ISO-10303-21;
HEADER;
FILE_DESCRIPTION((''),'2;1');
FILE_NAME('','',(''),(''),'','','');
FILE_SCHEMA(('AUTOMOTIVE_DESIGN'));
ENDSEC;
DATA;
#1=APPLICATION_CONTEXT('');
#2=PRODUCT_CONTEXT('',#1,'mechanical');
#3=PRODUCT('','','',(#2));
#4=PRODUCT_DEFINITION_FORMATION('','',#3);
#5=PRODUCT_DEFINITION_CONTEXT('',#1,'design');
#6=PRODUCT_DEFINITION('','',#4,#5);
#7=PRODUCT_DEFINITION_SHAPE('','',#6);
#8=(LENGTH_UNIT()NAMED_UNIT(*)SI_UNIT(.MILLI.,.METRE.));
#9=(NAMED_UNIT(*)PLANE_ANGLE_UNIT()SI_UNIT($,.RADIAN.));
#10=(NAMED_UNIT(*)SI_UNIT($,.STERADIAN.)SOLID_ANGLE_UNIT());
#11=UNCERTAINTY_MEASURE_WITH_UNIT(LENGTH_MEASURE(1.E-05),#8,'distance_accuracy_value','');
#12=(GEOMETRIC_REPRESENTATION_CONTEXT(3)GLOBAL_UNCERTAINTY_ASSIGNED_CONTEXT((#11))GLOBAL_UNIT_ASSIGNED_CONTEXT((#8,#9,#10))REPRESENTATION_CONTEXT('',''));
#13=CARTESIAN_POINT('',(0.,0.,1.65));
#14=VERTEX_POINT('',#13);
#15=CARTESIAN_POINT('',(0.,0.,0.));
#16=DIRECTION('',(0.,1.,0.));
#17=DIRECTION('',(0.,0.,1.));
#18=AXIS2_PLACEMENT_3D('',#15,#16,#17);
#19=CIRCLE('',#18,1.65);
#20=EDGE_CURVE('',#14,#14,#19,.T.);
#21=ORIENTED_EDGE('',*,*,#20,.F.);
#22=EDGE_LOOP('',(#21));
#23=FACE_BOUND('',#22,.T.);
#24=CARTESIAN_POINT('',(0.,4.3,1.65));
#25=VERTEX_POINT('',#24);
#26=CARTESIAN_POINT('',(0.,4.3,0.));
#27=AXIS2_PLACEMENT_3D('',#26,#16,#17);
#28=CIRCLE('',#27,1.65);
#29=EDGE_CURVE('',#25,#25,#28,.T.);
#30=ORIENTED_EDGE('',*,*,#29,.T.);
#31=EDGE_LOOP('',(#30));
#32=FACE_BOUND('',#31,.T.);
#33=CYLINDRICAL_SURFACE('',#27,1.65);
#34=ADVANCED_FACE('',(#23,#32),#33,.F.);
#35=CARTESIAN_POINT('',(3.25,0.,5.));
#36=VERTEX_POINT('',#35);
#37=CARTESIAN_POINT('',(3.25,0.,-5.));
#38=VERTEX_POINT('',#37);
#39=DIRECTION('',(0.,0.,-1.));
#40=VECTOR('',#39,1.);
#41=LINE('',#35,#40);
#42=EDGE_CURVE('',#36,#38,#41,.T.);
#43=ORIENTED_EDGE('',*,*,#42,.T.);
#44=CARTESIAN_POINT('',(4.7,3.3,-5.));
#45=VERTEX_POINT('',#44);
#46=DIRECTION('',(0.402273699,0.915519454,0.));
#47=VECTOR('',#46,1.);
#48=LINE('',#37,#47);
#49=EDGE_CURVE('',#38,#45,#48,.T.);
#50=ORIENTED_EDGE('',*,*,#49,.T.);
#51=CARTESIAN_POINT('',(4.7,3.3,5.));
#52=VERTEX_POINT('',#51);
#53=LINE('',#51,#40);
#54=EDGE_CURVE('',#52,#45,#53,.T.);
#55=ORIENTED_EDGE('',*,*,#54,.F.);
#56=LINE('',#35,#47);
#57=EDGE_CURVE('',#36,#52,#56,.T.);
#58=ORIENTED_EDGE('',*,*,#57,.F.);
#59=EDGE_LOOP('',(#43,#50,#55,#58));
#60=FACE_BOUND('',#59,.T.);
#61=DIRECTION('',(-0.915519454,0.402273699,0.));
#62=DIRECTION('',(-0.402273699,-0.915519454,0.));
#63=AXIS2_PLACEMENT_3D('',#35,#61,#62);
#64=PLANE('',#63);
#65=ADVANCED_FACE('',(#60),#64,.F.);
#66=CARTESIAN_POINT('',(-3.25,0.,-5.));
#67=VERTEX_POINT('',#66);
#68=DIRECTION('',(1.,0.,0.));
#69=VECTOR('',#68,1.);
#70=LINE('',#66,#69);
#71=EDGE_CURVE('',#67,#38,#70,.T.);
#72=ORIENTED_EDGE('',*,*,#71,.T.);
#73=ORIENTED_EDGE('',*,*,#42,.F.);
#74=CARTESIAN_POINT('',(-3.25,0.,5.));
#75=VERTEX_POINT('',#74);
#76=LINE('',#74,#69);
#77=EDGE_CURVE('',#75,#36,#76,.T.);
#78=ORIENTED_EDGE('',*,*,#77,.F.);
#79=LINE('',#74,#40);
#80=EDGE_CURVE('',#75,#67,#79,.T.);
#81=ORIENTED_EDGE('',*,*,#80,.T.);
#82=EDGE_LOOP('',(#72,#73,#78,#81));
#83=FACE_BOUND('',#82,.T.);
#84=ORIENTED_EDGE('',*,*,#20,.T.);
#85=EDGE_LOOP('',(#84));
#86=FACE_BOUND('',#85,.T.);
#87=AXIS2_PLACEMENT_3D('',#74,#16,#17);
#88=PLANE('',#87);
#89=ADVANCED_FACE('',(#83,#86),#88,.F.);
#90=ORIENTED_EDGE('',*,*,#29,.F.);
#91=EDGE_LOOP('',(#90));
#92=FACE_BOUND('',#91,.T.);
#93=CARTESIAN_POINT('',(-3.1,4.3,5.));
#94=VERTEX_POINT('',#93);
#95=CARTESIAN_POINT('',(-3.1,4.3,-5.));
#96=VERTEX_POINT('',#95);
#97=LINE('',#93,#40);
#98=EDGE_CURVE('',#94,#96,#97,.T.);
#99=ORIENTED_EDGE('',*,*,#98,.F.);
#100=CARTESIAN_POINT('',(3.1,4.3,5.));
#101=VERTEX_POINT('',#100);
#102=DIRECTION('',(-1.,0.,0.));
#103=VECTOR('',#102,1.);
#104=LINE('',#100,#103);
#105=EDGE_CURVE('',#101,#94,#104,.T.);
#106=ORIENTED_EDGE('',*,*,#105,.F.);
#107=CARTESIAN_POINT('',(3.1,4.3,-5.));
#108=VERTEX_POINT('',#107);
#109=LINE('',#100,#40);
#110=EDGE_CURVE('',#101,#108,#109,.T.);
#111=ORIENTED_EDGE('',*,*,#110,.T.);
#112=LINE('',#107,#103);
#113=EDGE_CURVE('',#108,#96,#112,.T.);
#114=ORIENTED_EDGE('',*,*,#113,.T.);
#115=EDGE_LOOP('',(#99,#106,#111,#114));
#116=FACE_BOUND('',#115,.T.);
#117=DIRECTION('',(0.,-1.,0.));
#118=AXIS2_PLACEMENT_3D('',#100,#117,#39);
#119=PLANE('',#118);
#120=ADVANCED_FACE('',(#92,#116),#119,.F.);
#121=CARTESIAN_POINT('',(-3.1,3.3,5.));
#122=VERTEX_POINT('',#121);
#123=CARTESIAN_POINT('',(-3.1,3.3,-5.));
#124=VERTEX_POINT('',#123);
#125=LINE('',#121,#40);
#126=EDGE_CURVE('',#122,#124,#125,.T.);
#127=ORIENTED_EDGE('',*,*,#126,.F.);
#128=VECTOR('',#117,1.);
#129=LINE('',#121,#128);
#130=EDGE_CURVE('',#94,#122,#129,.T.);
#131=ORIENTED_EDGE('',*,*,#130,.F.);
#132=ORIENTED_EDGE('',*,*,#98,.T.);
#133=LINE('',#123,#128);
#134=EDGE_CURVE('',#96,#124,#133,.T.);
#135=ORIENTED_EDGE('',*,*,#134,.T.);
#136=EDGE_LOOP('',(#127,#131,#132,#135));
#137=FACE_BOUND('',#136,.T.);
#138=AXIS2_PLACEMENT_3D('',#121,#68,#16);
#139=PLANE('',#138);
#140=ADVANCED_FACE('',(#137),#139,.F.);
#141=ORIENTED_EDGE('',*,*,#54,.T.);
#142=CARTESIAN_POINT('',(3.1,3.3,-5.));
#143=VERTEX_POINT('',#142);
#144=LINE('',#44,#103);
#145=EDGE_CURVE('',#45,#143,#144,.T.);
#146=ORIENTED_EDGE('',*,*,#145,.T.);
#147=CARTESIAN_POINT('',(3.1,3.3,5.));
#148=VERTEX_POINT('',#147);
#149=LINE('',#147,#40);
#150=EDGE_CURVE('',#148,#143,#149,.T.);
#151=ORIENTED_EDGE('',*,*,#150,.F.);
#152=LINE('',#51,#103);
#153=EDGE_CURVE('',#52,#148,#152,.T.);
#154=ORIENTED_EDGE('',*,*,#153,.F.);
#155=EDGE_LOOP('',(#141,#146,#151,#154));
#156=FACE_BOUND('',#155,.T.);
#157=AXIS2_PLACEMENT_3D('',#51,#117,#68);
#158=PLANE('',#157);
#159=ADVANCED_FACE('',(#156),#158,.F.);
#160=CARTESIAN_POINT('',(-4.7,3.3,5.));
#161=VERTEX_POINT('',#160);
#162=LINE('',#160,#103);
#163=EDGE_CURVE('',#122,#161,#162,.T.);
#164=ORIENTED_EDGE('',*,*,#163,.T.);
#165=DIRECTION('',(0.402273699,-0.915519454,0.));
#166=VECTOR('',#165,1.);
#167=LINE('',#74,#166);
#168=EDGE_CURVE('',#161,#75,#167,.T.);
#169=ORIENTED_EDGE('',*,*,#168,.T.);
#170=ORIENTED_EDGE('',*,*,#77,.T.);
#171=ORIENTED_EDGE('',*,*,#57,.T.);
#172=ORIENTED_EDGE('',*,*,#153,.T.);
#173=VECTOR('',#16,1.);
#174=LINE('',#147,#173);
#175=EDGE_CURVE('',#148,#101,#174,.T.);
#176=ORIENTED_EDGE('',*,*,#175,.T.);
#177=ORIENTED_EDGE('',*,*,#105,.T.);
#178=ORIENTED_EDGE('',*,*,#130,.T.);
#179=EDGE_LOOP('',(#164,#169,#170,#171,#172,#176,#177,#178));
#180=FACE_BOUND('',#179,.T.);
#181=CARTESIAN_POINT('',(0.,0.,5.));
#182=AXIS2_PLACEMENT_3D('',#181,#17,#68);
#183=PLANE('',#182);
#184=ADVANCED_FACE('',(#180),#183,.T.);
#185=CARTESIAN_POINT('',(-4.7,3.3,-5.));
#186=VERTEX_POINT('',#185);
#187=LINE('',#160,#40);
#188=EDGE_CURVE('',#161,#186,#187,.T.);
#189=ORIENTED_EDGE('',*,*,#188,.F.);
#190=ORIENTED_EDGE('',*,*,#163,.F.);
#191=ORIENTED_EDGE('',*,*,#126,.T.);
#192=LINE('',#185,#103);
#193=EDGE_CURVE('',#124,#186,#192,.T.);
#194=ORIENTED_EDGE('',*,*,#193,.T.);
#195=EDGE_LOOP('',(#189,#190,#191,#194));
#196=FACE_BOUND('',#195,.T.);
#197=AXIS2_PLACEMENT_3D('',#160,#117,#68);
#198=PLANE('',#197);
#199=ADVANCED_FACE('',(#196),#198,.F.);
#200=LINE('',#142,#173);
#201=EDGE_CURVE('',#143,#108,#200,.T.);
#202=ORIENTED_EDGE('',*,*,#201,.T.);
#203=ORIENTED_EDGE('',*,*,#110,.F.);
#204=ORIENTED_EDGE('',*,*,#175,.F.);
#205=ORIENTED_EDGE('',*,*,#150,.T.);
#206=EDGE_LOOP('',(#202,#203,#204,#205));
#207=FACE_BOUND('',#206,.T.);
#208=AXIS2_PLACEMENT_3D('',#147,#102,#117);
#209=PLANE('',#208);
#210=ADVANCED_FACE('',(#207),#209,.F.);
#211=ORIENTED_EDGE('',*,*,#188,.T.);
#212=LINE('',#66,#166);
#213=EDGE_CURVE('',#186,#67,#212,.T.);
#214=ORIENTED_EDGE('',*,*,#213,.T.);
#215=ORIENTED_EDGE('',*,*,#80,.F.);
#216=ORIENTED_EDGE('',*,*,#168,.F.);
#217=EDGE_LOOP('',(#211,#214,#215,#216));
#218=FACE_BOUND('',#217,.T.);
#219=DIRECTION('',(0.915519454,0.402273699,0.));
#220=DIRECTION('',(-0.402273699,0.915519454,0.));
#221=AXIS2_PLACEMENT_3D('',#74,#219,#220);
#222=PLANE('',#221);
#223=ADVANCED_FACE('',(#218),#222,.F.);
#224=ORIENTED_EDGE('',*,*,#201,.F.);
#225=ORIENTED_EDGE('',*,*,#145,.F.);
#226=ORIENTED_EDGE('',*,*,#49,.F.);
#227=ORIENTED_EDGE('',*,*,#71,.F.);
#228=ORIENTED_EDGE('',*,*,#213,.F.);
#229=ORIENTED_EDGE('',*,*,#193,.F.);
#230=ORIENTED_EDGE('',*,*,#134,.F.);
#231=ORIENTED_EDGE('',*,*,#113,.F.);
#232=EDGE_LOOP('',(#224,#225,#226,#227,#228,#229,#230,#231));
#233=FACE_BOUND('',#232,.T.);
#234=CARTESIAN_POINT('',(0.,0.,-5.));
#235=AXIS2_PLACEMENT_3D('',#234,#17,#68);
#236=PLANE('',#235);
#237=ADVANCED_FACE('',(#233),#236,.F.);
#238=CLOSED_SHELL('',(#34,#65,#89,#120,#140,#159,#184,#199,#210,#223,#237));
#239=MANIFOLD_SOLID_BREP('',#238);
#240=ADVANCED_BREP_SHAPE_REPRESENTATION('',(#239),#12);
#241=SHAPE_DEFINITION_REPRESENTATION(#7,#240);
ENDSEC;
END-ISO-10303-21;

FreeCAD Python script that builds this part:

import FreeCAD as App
import Part
import Sketcher
from FreeCAD import Vector

doc = App.newDocument("Part")
params = doc.addObject("Spreadsheet::Sheet", "Params")
for row, (alias, value) in enumerate([
    ("sketch1_height", "1 mm"),
    ("sketch1_width", "6.5 mm"),
    ("sketch1_width2", "1.6 mm"),
    ("sketch1_width3", "6.2 mm"),
    ("pad1_length", "10 mm"),
    ("sketch2_diameter", "3.3 mm"),
    ("hole_diameter", "3.3 mm"),
    ("hole_depth", "11.5 mm"),
], start=1):
    params.set(f"A{row}", alias)
    params.set(f"B{row}", "=" + value)
    params.setAlias(f"B{row}", alias)

body = doc.addObject("PartDesign::Body", "Body")

sketch1 = doc.addObject("Sketcher::SketchObject", "Sketch")
body.addObject(sketch1)
sketch1.AttachmentSupport = (doc.XY_Plane, [""])
sketch1.MapMode = "FlatFace"
sketch1.addGeometry(Part.LineSegment(Vector(-3.2, 0, 0), Vector(3.2, 0, 0)), False)
sketch1.addGeometry(Part.LineSegment(Vector(3.2, 0, 0), Vector(4.7, 3.3, 0)), False)
sketch1.addGeometry(Part.LineSegment(Vector(4.7, 3.3, 0), Vector(3.1, 3.3, 0)), False)
sketch1.addGeometry(Part.LineSegment(Vector(3.1, 3.3, 0), Vector(3.1, 4.3, 0)), False)
sketch1.addGeometry(Part.LineSegment(Vector(3.1, 4.3, 0), Vector(-3.1, 4.3, 0)), False)
sketch1.addGeometry(Part.LineSegment(Vector(-3.1, 4.3, 0), Vector(-3.1, 3.3, 0)), False)
sketch1.addGeometry(Part.LineSegment(Vector(-3.1, 3.3, 0), Vector(-4.7, 3.3, 0)), False)
sketch1.addGeometry(Part.LineSegment(Vector(-4.7, 3.3, 0), Vector(-3.2, 0, 0)), False)
sketch1.addConstraint(Sketcher.Constraint("Coincident", 0, 2, 1, 1))
sketch1.addConstraint(Sketcher.Constraint("Coincident", 1, 2, 2, 1))
sketch1.addConstraint(Sketcher.Constraint("Coincident", 2, 2, 3, 1))
sketch1.addConstraint(Sketcher.Constraint("Coincident", 3, 2, 4, 1))
sketch1.addConstraint(Sketcher.Constraint("Coincident", 4, 2, 5, 1))
sketch1.addConstraint(Sketcher.Constraint("Coincident", 5, 2, 6, 1))
sketch1.addConstraint(Sketcher.Constraint("Coincident", 6, 2, 7, 1))
sketch1.addConstraint(Sketcher.Constraint("Coincident", 7, 2, 0, 1))
sketch1.addConstraint(Sketcher.Constraint("Horizontal", 0))
sketch1.addConstraint(Sketcher.Constraint("Horizontal", 2))
sketch1.addConstraint(Sketcher.Constraint("Vertical", 3))
sketch1.addConstraint(Sketcher.Constraint("Horizontal", 4))
sketch1.addConstraint(Sketcher.Constraint("Vertical", 5))
sketch1.addConstraint(Sketcher.Constraint("Horizontal", 6))
sketch1.addConstraint(Sketcher.Constraint("Symmetric", 0, 2, 7, 2, -1, 1))
sketch1.addConstraint(Sketcher.Constraint("Symmetric", 2, 2, 5, 2, -2))
sketch1.addConstraint(Sketcher.Constraint("Equal", 2, 6))
sketch1.addConstraint(Sketcher.Constraint("DistanceY", 3, 1, 3, 2, 1.0))
sketch1.addConstraint(Sketcher.Constraint("DistanceX", 0, 1, 0, 2, 6.5))
sketch1.addConstraint(Sketcher.Constraint("DistanceX", 2, 2, 2, 1, 1.6))
sketch1.addConstraint(Sketcher.Constraint("DistanceX", 4, 2, 4, 1, 6.2))
sketch1.addConstraint(Sketcher.Constraint("DistanceY", -1, 1, 1, 2, 3.3))
sketch1.setExpression("Constraints[17]", "Params.sketch1_height")
sketch1.setExpression("Constraints[18]", "Params.sketch1_width")
sketch1.setExpression("Constraints[19]", "Params.sketch1_width2")
sketch1.setExpression("Constraints[20]", "Params.sketch1_width3")
pad1 = doc.addObject("PartDesign::Pad", "Pad")
body.addObject(pad1)
pad1.Profile = sketch1
pad1.setExpression("Length", "Params.pad1_length")
pad1.Midplane = True

sketch2 = doc.addObject("Sketcher::SketchObject", "Sketch001")
body.addObject(sketch2)
sketch2.AttachmentSupport = (doc.XZ_Plane, [""])
sketch2.MapMode = "FlatFace"
sketch2.AttachmentOffset = App.Placement(Vector(0, 0, -4.3), App.Rotation())
sketch2.addGeometry(Part.Circle(Vector(0, 0, 0), Vector(0, 0, 1), 1.6), False)
sketch2.addConstraint(Sketcher.Constraint("Coincident", 0, 3, -1, 1))
sketch2.addConstraint(Sketcher.Constraint("Diameter", 0, 3.3))
sketch2.setExpression("Constraints[1]", "Params.sketch2_diameter")
doc.recompute()
hole = doc.addObject("PartDesign::Hole", "Hole")
body.addObject(hole)
hole.Profile = sketch2
hole.ThreadType = "None"
hole.setExpression("Diameter", "Params.hole_diameter")
hole.DepthType = "Dimension"
hole.setExpression("Depth", "Params.hole_depth")
hole.DrillPoint = "Angled"
hole.DrillPointAngle = 118
hole.Reversed = True

doc.recompute()
